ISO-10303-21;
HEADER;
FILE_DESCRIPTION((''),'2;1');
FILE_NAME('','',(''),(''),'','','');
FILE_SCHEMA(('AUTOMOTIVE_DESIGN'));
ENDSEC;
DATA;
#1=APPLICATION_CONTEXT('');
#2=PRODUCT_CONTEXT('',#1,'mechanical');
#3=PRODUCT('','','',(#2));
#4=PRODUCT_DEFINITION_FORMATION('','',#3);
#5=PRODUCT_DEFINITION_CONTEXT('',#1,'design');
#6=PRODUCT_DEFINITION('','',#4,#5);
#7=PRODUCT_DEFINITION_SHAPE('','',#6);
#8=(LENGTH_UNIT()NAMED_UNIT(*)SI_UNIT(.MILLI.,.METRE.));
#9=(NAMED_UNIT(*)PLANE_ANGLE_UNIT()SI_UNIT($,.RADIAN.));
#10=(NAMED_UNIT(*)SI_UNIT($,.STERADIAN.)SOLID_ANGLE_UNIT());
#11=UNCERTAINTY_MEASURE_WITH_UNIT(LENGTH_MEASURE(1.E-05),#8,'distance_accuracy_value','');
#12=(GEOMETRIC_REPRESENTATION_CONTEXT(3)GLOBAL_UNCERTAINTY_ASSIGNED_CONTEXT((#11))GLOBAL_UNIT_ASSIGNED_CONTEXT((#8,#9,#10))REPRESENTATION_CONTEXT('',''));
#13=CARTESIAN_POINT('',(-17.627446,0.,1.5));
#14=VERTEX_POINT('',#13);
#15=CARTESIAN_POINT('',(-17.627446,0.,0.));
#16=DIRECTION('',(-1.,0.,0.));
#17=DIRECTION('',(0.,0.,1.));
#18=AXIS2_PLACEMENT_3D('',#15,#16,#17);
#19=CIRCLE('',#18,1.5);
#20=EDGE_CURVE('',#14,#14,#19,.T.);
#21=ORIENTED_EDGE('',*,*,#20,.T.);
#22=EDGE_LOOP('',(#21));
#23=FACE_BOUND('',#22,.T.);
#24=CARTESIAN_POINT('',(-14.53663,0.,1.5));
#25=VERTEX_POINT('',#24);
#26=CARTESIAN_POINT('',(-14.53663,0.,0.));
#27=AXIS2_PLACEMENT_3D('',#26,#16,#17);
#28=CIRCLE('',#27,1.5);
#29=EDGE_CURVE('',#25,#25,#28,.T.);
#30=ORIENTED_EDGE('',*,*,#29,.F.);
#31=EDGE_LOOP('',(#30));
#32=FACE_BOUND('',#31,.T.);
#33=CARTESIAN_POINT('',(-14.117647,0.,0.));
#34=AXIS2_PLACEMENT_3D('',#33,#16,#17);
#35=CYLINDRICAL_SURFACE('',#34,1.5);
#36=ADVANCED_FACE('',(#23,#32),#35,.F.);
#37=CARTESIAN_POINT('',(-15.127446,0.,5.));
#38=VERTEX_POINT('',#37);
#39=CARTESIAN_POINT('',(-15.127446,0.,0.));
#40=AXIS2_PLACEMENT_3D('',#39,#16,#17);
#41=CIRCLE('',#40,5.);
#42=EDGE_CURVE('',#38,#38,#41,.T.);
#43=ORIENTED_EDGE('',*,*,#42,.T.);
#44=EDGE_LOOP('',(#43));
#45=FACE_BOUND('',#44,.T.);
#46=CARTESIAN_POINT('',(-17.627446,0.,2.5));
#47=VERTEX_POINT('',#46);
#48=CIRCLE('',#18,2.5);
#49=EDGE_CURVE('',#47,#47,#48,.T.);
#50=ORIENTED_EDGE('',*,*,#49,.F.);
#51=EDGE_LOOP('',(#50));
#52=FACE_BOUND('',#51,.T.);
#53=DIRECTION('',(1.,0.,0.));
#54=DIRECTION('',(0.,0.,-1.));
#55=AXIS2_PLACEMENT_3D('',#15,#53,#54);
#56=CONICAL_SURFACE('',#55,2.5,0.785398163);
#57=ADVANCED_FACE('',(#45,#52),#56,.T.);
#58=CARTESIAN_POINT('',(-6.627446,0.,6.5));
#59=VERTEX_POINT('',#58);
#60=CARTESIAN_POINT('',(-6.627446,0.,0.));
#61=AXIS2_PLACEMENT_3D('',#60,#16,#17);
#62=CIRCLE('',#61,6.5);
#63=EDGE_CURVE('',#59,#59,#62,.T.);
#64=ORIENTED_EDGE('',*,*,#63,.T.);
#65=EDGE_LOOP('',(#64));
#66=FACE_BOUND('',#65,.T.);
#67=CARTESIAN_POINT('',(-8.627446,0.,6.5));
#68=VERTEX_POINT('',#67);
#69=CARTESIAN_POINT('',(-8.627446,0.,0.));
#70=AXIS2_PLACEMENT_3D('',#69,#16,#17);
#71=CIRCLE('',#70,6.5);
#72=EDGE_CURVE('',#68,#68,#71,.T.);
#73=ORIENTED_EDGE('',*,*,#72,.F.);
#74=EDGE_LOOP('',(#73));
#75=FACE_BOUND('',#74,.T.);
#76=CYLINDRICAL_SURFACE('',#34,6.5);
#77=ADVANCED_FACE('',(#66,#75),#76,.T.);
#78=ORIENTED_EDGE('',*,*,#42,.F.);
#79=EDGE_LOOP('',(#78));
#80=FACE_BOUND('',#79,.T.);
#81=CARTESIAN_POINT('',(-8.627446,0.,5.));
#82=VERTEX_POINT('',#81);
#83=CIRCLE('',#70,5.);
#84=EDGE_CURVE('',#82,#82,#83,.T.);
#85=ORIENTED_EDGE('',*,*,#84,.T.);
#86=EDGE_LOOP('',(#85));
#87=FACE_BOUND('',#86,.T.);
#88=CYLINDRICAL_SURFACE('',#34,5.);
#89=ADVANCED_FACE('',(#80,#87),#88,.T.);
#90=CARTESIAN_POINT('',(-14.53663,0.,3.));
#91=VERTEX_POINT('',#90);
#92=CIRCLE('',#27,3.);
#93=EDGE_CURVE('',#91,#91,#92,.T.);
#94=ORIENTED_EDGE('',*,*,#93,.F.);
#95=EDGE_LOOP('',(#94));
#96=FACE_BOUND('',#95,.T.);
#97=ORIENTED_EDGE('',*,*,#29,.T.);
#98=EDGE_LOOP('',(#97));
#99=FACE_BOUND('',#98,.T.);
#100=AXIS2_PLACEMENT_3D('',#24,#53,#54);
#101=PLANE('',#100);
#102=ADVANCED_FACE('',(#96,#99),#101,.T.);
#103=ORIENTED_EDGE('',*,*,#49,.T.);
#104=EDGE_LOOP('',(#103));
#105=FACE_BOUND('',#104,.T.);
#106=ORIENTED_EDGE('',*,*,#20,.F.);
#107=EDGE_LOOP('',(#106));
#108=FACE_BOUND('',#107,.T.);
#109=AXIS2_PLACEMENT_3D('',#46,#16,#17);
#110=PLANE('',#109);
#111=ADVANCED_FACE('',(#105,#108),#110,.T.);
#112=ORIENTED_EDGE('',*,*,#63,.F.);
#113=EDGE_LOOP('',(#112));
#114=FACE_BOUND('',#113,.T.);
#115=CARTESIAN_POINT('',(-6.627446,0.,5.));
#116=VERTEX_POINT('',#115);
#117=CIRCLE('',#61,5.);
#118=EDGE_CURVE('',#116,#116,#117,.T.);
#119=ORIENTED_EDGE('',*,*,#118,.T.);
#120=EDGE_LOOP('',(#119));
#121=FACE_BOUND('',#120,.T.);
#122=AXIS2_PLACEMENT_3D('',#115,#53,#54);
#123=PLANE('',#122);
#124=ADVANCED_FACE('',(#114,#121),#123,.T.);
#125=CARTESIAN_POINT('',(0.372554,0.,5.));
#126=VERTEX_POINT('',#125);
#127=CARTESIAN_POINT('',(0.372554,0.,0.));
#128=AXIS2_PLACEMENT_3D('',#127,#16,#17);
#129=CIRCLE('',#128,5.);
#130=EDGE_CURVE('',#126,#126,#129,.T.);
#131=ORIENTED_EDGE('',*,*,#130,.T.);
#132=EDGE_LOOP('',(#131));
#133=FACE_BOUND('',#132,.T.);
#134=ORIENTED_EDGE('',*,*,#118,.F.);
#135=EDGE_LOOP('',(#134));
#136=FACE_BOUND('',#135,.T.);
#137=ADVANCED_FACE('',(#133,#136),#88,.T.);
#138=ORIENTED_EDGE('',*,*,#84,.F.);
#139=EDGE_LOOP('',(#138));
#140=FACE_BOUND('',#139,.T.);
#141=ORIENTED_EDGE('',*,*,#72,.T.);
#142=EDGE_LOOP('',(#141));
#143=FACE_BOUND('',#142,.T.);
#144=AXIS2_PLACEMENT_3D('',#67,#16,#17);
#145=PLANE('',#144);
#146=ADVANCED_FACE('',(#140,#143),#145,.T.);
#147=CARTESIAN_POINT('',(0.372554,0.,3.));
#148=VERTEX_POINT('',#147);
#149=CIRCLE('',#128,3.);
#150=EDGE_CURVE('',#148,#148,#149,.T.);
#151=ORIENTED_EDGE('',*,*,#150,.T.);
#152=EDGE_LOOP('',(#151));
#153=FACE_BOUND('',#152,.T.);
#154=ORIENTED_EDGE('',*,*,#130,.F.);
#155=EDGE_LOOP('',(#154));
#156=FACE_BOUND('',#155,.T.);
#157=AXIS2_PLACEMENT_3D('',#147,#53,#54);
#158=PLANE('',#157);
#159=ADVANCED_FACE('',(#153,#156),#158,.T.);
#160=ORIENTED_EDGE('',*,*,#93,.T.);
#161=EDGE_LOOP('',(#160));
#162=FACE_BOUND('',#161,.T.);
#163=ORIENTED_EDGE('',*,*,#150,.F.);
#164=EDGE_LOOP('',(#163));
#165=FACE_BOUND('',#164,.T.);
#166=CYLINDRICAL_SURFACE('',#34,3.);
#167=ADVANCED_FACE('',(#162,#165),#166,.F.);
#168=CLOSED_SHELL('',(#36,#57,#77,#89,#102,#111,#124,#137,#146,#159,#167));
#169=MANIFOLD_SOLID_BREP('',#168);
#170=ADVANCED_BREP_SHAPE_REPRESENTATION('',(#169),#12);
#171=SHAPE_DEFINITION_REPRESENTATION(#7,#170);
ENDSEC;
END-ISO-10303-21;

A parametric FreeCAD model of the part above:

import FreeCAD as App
import Part
import Sketcher
from FreeCAD import Vector
Q = App.Units.Quantity

doc = App.newDocument("Part")
body = doc.addObject("PartDesign::Body", "Body")

# Sketch on XZ plane
sketch1 = body.newObject("Sketcher::SketchObject", "Sketch")
sketch1.AttachmentSupport = (doc.getObject("XZ_Plane"), [""])
sketch1.MapMode = "FlatFace"
sketch1.addGeometry([
    Part.LineSegment(Vector(0.372554, 5, 0), Vector(0.372554, 3, 0)),  # 0
    Part.LineSegment(Vector(0.372554, 3, 0), Vector(-14.53663, 3, 0)),  # 1
    Part.LineSegment(Vector(-14.53663, 3, 0), Vector(-14.53663, 1.5, 0)),  # 2
    Part.LineSegment(Vector(-14.53663, 1.5, 0), Vector(-17.627446, 1.5, 0)),  # 3
    Part.LineSegment(Vector(-17.627446, 1.5, 0), Vector(-17.627446, 2.5, 0)),  # 4
    Part.LineSegment(Vector(-17.627446, 2.5, 0), Vector(-15.127446, 5, 0)),  # 5
    Part.LineSegment(Vector(-15.127446, 5, 0), Vector(-8.627446, 5, 0)),  # 6
    Part.LineSegment(Vector(-8.627446, 5, 0), Vector(-8.627446, 6.5, 0)),  # 7
    Part.LineSegment(Vector(-8.627446, 6.5, 0), Vector(-6.627446, 6.5, 0)),  # 8
    Part.LineSegment(Vector(-6.627446, 6.5, 0), Vector(-6.627446, 5, 0)),  # 9
    Part.LineSegment(Vector(-6.627446, 5, 0), Vector(0.372554, 5, 0)),  # 10
], False)
sketch1.addConstraint([
    Sketcher.Constraint("Coincident", 0, 2, 1, 1),
    Sketcher.Constraint("Coincident", 1, 2, 2, 1),
    Sketcher.Constraint("Coincident", 2, 2, 3, 1),
    Sketcher.Constraint("Coincident", 3, 2, 4, 1),
    Sketcher.Constraint("Coincident", 4, 2, 5, 1),
    Sketcher.Constraint("Coincident", 5, 2, 6, 1),
    Sketcher.Constraint("Coincident", 6, 2, 7, 1),
    Sketcher.Constraint("Coincident", 7, 2, 8, 1),
    Sketcher.Constraint("Coincident", 8, 2, 9, 1),
    Sketcher.Constraint("Coincident", 9, 2, 10, 1),
    Sketcher.Constraint("Coincident", 10, 2, 0, 1),
    Sketcher.Constraint("Vertical", 0),
    Sketcher.Constraint("Horizontal", 1),
    Sketcher.Constraint("Vertical", 2),
    Sketcher.Constraint("Horizontal", 3),
    Sketcher.Constraint("Vertical", 4),
    Sketcher.Constraint("Horizontal", 6),
    Sketcher.Constraint("Vertical", 7),
    Sketcher.Constraint("Horizontal", 8),
    Sketcher.Constraint("Vertical", 9),
    Sketcher.Constraint("Horizontal", 10),
    Sketcher.Constraint("Horizontal", 6, 2, 9, 2),
    Sketcher.Constraint("Equal", 8, 0),
    Sketcher.Constraint("Equal", 2, 7),
    Sketcher.Constraint("DistanceX", 8, 1, 8, 2, Q("2 mm")),
    Sketcher.Constraint("DistanceX", 10, 1, 10, 2, Q("7 mm")),
    Sketcher.Constraint("DistanceY", 4, 1, 4, 2, Q("1 mm")),
    Sketcher.Constraint("Angle", 5, Q("45 deg")),
    Sketcher.Constraint("DistanceX", 6, 1, 6, 2, Q("6.5 mm")),
    Sketcher.Constraint("DistanceY", 2, 2, 2, 1, Q("1.5 mm")),
    Sketcher.Constraint("DistanceY", -1, 1, 0, 2, Q("3 mm")),
    Sketcher.Constraint("DistanceX", 1, 2, 1, 1, Q("14.909184 mm")),
    Sketcher.Constraint("DistanceX", 1, 2, -1, 1, Q("14.53663 mm")),
])
revolution = body.newObject("PartDesign::Revolution", "Revolution")
revolution.Profile = sketch1
revolution.ReferenceAxis = (sketch1, ["H_Axis"])
revolution.Angle = 360

doc.recompute()
